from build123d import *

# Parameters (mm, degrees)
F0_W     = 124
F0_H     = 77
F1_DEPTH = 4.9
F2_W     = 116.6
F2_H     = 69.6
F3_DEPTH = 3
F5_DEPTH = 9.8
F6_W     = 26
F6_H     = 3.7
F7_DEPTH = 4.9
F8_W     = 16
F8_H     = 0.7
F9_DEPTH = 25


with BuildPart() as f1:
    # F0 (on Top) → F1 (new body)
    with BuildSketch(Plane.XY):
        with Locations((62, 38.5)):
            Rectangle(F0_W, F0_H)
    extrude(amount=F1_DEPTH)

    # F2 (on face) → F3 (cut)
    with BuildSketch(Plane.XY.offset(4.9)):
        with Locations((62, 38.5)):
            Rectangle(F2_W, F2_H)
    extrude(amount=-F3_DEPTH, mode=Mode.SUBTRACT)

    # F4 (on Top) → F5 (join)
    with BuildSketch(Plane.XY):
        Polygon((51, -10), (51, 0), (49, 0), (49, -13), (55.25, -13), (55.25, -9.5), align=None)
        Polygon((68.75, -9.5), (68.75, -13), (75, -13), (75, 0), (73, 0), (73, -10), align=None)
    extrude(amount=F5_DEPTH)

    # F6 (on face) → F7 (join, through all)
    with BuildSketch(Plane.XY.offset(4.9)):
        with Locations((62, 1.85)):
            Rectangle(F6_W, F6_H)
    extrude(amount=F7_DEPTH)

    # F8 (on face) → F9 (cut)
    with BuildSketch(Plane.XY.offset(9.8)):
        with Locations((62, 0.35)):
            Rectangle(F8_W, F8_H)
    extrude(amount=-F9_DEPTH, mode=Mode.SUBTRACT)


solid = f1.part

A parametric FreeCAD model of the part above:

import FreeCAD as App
import Part
import Sketcher

V = App.Vector

doc = App.newDocument("Part")
body = doc.addObject("PartDesign::Body", "Body")

sketch1 = doc.addObject("Sketcher::SketchObject", "Sketch")
body.addObject(sketch1)
sketch1.AttachmentSupport = (doc.XY_Plane, [""])
sketch1.MapMode = "FlatFace"
sketch1.addGeometry(Part.LineSegment(V(0, 77, 0), V(0, 0, 0)), False)
sketch1.addGeometry(Part.LineSegment(V(0, 0, 0), V(124, 0, 0)), False)
sketch1.addGeometry(Part.LineSegment(V(124, 0, 0), V(124, 77, 0)), False)
sketch1.addGeometry(Part.LineSegment(V(124, 77, 0), V(0, 77, 0)), False)
sketch1.addConstraint(Sketcher.Constraint("Coincident", 0, 2, 1, 1))
sketch1.addConstraint(Sketcher.Constraint("Coincident", 1, 2, 2, 1))
sketch1.addConstraint(Sketcher.Constraint("Coincident", 2, 2, 3, 1))
sketch1.addConstraint(Sketcher.Constraint("Coincident", 3, 2, 0, 1))
sketch1.addConstraint(Sketcher.Constraint("Vertical", 0))
sketch1.addConstraint(Sketcher.Constraint("Horizontal", 1))
sketch1.addConstraint(Sketcher.Constraint("Vertical", 2))
sketch1.addConstraint(Sketcher.Constraint("Horizontal", 3))
sketch1.addConstraint(Sketcher.Constraint("Coincident", 0, 2, -1, 1))
sketch1.addConstraint(Sketcher.Constraint("DistanceX", 1, 1, 1, 2, 124.0))
sketch1.addConstraint(Sketcher.Constraint("DistanceY", 0, 2, 0, 1, 77.0))
pad1 = doc.addObject("PartDesign::Pad", "Pad")
body.addObject(pad1)
pad1.Profile = sketch1
pad1.Length = 4.9

sketch2 = doc.addObject("Sketcher::SketchObject", "Sketch001")
body.addObject(sketch2)
sketch2.AttachmentSupport = (doc.XY_Plane, [""])
sketch2.MapMode = "FlatFace"
sketch2.AttachmentOffset = App.Placement(V(0, 0, 4.9), App.Rotation())
sketch2.addGeometry(Part.LineSegment(V(4, 73, 0), V(4, 4, 0)), False)
sketch2.addGeometry(Part.LineSegment(V(4, 4, 0), V(120, 4, 0)), False)
sketch2.addGeometry(Part.LineSegment(V(120, 4, 0), V(120, 73, 0)), False)
sketch2.addGeometry(Part.LineSegment(V(120, 73, 0), V(4, 73, 0)), False)
sketch2.addConstraint(Sketcher.Constraint("Coincident", 0, 2, 1, 1))
sketch2.addConstraint(Sketcher.Constraint("Coincident", 1, 2, 2, 1))
sketch2.addConstraint(Sketcher.Constraint("Coincident", 2, 2, 3, 1))
sketch2.addConstraint(Sketcher.Constraint("Coincident", 3, 2, 0, 1))
sketch2.addConstraint(Sketcher.Constraint("Vertical", 0))
sketch2.addConstraint(Sketcher.Constraint("Horizontal", 1))
sketch2.addConstraint(Sketcher.Constraint("Vertical", 2))
sketch2.addConstraint(Sketcher.Constraint("Horizontal", 3))
sketch2.addConstraint(Sketcher.Constraint("DistanceX", 1, 1, 1, 2, 116.6))
sketch2.addConstraint(Sketcher.Constraint("DistanceY", 0, 2, 0, 1, 69.6))
sketch2.addConstraint(Sketcher.Constraint("DistanceX", -1, 1, 0, 2, 3.7))
sketch2.addConstraint(Sketcher.Constraint("DistanceY", -1, 1, 0, 2, 3.7))
pocket1 = doc.addObject("PartDesign::Pocket", "Pocket")
body.addObject(pocket1)
pocket1.Profile = sketch2
pocket1.Length = 3

sketch3 = doc.addObject("Sketcher::SketchObject", "Sketch002")
body.addObject(sketch3)
sketch3.AttachmentSupport = (doc.XY_Plane, [""])
sketch3.MapMode = "FlatFace"
sketch3.addGeometry(Part.LineSegment(V(51, -10, 0), V(51, 0, 0)), False)
sketch3.addGeometry(Part.LineSegment(V(51, 0, 0), V(49, 0, 0)), False)
sketch3.addGeometry(Part.LineSegment(V(49, 0, 0), V(49, -13, 0)), False)
sketch3.addGeometry(Part.LineSegment(V(49, -13, 0), V(55.2, -13, 0)), False)
sketch3.addGeometry(Part.LineSegment(V(55.2, -13, 0), V(55.2, -9.5, 0)), False)
sketch3.addGeometry(Part.LineSegment(V(55.2, -9.5, 0), V(51, -10, 0)), False)
sketch3.addGeometry(Part.LineSegment(V(68.8, -9.5, 0), V(68.8, -13, 0)), False)
sketch3.addGeometry(Part.LineSegment(V(68.8, -13, 0), V(75, -13, 0)), False)
sketch3.addGeometry(Part.LineSegment(V(75, -13, 0), V(75, 0, 0)), False)
sketch3.addGeometry(Part.LineSegment(V(75, 0, 0), V(73, 0, 0)), False)
sketch3.addGeometry(Part.LineSegment(V(73, 0, 0), V(73, -10, 0)), False)
sketch3.addGeometry(Part.LineSegment(V(73, -10, 0), V(68.8, -9.5, 0)), False)
sketch3.addConstraint(Sketcher.Constraint("Coincident", 0, 2, 1, 1))
sketch3.addConstraint(Sketcher.Constraint("Coincident", 1, 2, 2, 1))
sketch3.addConstraint(Sketcher.Constraint("Coincident", 2, 2, 3, 1))
sketch3.addConstraint(Sketcher.Constraint("Coincident", 3, 2, 4, 1))
sketch3.addConstraint(Sketcher.Constraint("Coincident", 4, 2, 5, 1))
sketch3.addConstraint(Sketcher.Constraint("Coincident", 5, 2, 0, 1))
sketch3.addConstraint(Sketcher.Constraint("Coincident", 6, 2, 7, 1))
sketch3.addConstraint(Sketcher.Constraint("Coincident", 7, 2, 8, 1))
sketch3.addConstraint(Sketcher.Constraint("Coincident", 8, 2, 9, 1))
sketch3.addConstraint(Sketcher.Constraint("Coincident", 9, 2, 10, 1))
sketch3.addConstraint(Sketcher.Constraint("Coincident", 10, 2, 11, 1))
sketch3.addConstraint(Sketcher.Constraint("Coincident", 11, 2, 6, 1))
sketch3.addConstraint(Sketcher.Constraint("Vertical", 0))
sketch3.addConstraint(Sketcher.Constraint("Horizontal", 1))
sketch3.addConstraint(Sketcher.Constraint("Vertical", 2))
sketch3.addConstraint(Sketcher.Constraint("Horizontal", 3))
sketch3.addConstraint(Sketcher.Constraint("Vertical", 4))
sketch3.addConstraint(Sketcher.Constraint("Vertical", 6))
sketch3.addConstraint(Sketcher.Constraint("Horizontal", 7))
sketch3.addConstraint(Sketcher.Constraint("Vertical", 8))
sketch3.addConstraint(Sketcher.Constraint("Horizontal", 9))
sketch3.addConstraint(Sketcher.Constraint("Vertical", 10))
sketch3.addConstraint(Sketcher.Constraint("PointOnObject", 0, 2, -1))
sketch3.addConstraint(Sketcher.Constraint("PointOnObject", 8, 2, -1))
sketch3.addConstraint(Sketcher.Constraint("Horizontal", 3, 2, 6, 2))
sketch3.addConstraint(Sketcher.Constraint("Horizontal", 5, 2, 10, 2))
sketch3.addConstraint(Sketcher.Constraint("Horizontal", 4, 2, 11, 2))
sketch3.addConstraint(Sketcher.Constraint("Equal", 3, 7))
sketch3.addConstraint(Sketcher.Constraint("Equal", 1, 9))
sketch3.addConstraint(Sketcher.Constraint("DistanceX", 1, 2, 1, 1, 2.0))
sketch3.addConstraint(Sketcher.Constraint("DistanceY", 0, 1, 0, 2, 10.0))
sketch3.addConstraint(Sketcher.Constraint("DistanceY", 2, 2, 2, 1, 13.0))
sketch3.addConstraint(Sketcher.Constraint("DistanceY", 4, 1, 4, 2, 3.5))
sketch3.addConstraint(Sketcher.Constraint("DistanceX", -1, 1, 0, 2, 51.0))
sketch3.addConstraint(Sketcher.Constraint("DistanceX", -1, 1, 7, 2, 75.0))
sketch3.addConstraint(Sketcher.Constraint("DistanceX", 3, 1, 3, 2, 6.25))
pad2 = doc.addObject("PartDesign::Pad", "Pad001")
body.addObject(pad2)
pad2.Profile = sketch3
pad2.Length = 9.8

sketch4 = doc.addObject("Sketcher::SketchObject", "Sketch003")
body.addObject(sketch4)
sketch4.AttachmentSupport = (doc.XY_Plane, [""])
sketch4.MapMode = "FlatFace"
sketch4.AttachmentOffset = App.Placement(V(0, 0, 4.9), App.Rotation())
sketch4.addGeometry(Part.LineSegment(V(49, 3.7, 0), V(49, 0, 0)), False)
sketch4.addGeometry(Part.LineSegment(V(49, 0, 0), V(75, 0, 0)), False)
sketch4.addGeometry(Part.LineSegment(V(75, 0, 0), V(75, 3.7, 0)), False)
sketch4.addGeometry(Part.LineSegment(V(75, 3.7, 0), V(49, 3.7, 0)), False)
sketch4.addConstraint(Sketcher.Constraint("Coincident", 0, 2, 1, 1))
sketch4.addConstraint(Sketcher.Constraint("Coincident", 1, 2, 2, 1))
sketch4.addConstraint(Sketcher.Constraint("Coincident", 2, 2, 3, 1))
sketch4.addConstraint(Sketcher.Constraint("Coincident", 3, 2, 0, 1))
sketch4.addConstraint(Sketcher.Constraint("Vertical", 0))
sketch4.addConstraint(Sketcher.Constraint("Horizontal", 1))
sketch4.addConstraint(Sketcher.Constraint("Vertical", 2))
sketch4.addConstraint(Sketcher.Constraint("Horizontal", 3))
sketch4.addConstraint(Sketcher.Constraint("PointOnObject", 0, 2, -1))
sketch4.addConstraint(Sketcher.Constraint("DistanceX", 1, 1, 1, 2, 26.0))
sketch4.addConstraint(Sketcher.Constraint("DistanceY", 0, 2, 0, 1, 3.7))
sketch4.addConstraint(Sketcher.Constraint("DistanceX", -1, 1, 0, 2, 49.0))
pad3 = doc.addObject("PartDesign::Pad", "Pad002")
body.addObject(pad3)
pad3.Profile = sketch4
pad3.Length = 4.9

sketch5 = doc.addObject("Sketcher::SketchObject", "Sketch004")
body.addObject(sketch5)
sketch5.AttachmentSupport = (doc.XY_Plane, [""])
sketch5.MapMode = "FlatFace"
sketch5.AttachmentOffset = App.Placement(V(0, 0, 9.8), App.Rotation())
sketch5.addGeometry(Part.LineSegment(V(54, 0.7, 0), V(54, 0, 0)), False)
sketch5.addGeometry(Part.LineSegment(V(54, 0, 0), V(70, 0, 0)), False)
sketch5.addGeometry(Part.LineSegment(V(70, 0, 0), V(70, 0.7, 0)), False)
sketch5.addGeometry(Part.LineSegment(V(70, 0.7, 0), V(54, 0.7, 0)), False)
sketch5.addConstraint(Sketcher.Constraint("Coincident", 0, 2, 1, 1))
sketch5.addConstraint(Sketcher.Constraint("Coincident", 1, 2, 2, 1))
sketch5.addConstraint(Sketcher.Constraint("Coincident", 2, 2, 3, 1))
sketch5.addConstraint(Sketcher.Constraint("Coincident", 3, 2, 0, 1))
sketch5.addConstraint(Sketcher.Constraint("Vertical", 0))
sketch5.addConstraint(Sketcher.Constraint("Horizontal", 1))
sketch5.addConstraint(Sketcher.Constraint("Vertical", 2))
sketch5.addConstraint(Sketcher.Constraint("Horizontal", 3))
sketch5.addConstraint(Sketcher.Constraint("PointOnObject", 0, 2, -1))
sketch5.addConstraint(Sketcher.Constraint("DistanceX", 1, 1, 1, 2, 16.0))
sketch5.addConstraint(Sketcher.Constraint("DistanceY", 0, 2, 0, 1, 0.7))
sketch5.addConstraint(Sketcher.Constraint("DistanceX", -1, 1, 0, 2, 54.0))
pocket2 = doc.addObject("PartDesign::Pocket", "Pocket001")
body.addObject(pocket2)
pocket2.Profile = sketch5
pocket2.Length = 25

doc.recompute()
